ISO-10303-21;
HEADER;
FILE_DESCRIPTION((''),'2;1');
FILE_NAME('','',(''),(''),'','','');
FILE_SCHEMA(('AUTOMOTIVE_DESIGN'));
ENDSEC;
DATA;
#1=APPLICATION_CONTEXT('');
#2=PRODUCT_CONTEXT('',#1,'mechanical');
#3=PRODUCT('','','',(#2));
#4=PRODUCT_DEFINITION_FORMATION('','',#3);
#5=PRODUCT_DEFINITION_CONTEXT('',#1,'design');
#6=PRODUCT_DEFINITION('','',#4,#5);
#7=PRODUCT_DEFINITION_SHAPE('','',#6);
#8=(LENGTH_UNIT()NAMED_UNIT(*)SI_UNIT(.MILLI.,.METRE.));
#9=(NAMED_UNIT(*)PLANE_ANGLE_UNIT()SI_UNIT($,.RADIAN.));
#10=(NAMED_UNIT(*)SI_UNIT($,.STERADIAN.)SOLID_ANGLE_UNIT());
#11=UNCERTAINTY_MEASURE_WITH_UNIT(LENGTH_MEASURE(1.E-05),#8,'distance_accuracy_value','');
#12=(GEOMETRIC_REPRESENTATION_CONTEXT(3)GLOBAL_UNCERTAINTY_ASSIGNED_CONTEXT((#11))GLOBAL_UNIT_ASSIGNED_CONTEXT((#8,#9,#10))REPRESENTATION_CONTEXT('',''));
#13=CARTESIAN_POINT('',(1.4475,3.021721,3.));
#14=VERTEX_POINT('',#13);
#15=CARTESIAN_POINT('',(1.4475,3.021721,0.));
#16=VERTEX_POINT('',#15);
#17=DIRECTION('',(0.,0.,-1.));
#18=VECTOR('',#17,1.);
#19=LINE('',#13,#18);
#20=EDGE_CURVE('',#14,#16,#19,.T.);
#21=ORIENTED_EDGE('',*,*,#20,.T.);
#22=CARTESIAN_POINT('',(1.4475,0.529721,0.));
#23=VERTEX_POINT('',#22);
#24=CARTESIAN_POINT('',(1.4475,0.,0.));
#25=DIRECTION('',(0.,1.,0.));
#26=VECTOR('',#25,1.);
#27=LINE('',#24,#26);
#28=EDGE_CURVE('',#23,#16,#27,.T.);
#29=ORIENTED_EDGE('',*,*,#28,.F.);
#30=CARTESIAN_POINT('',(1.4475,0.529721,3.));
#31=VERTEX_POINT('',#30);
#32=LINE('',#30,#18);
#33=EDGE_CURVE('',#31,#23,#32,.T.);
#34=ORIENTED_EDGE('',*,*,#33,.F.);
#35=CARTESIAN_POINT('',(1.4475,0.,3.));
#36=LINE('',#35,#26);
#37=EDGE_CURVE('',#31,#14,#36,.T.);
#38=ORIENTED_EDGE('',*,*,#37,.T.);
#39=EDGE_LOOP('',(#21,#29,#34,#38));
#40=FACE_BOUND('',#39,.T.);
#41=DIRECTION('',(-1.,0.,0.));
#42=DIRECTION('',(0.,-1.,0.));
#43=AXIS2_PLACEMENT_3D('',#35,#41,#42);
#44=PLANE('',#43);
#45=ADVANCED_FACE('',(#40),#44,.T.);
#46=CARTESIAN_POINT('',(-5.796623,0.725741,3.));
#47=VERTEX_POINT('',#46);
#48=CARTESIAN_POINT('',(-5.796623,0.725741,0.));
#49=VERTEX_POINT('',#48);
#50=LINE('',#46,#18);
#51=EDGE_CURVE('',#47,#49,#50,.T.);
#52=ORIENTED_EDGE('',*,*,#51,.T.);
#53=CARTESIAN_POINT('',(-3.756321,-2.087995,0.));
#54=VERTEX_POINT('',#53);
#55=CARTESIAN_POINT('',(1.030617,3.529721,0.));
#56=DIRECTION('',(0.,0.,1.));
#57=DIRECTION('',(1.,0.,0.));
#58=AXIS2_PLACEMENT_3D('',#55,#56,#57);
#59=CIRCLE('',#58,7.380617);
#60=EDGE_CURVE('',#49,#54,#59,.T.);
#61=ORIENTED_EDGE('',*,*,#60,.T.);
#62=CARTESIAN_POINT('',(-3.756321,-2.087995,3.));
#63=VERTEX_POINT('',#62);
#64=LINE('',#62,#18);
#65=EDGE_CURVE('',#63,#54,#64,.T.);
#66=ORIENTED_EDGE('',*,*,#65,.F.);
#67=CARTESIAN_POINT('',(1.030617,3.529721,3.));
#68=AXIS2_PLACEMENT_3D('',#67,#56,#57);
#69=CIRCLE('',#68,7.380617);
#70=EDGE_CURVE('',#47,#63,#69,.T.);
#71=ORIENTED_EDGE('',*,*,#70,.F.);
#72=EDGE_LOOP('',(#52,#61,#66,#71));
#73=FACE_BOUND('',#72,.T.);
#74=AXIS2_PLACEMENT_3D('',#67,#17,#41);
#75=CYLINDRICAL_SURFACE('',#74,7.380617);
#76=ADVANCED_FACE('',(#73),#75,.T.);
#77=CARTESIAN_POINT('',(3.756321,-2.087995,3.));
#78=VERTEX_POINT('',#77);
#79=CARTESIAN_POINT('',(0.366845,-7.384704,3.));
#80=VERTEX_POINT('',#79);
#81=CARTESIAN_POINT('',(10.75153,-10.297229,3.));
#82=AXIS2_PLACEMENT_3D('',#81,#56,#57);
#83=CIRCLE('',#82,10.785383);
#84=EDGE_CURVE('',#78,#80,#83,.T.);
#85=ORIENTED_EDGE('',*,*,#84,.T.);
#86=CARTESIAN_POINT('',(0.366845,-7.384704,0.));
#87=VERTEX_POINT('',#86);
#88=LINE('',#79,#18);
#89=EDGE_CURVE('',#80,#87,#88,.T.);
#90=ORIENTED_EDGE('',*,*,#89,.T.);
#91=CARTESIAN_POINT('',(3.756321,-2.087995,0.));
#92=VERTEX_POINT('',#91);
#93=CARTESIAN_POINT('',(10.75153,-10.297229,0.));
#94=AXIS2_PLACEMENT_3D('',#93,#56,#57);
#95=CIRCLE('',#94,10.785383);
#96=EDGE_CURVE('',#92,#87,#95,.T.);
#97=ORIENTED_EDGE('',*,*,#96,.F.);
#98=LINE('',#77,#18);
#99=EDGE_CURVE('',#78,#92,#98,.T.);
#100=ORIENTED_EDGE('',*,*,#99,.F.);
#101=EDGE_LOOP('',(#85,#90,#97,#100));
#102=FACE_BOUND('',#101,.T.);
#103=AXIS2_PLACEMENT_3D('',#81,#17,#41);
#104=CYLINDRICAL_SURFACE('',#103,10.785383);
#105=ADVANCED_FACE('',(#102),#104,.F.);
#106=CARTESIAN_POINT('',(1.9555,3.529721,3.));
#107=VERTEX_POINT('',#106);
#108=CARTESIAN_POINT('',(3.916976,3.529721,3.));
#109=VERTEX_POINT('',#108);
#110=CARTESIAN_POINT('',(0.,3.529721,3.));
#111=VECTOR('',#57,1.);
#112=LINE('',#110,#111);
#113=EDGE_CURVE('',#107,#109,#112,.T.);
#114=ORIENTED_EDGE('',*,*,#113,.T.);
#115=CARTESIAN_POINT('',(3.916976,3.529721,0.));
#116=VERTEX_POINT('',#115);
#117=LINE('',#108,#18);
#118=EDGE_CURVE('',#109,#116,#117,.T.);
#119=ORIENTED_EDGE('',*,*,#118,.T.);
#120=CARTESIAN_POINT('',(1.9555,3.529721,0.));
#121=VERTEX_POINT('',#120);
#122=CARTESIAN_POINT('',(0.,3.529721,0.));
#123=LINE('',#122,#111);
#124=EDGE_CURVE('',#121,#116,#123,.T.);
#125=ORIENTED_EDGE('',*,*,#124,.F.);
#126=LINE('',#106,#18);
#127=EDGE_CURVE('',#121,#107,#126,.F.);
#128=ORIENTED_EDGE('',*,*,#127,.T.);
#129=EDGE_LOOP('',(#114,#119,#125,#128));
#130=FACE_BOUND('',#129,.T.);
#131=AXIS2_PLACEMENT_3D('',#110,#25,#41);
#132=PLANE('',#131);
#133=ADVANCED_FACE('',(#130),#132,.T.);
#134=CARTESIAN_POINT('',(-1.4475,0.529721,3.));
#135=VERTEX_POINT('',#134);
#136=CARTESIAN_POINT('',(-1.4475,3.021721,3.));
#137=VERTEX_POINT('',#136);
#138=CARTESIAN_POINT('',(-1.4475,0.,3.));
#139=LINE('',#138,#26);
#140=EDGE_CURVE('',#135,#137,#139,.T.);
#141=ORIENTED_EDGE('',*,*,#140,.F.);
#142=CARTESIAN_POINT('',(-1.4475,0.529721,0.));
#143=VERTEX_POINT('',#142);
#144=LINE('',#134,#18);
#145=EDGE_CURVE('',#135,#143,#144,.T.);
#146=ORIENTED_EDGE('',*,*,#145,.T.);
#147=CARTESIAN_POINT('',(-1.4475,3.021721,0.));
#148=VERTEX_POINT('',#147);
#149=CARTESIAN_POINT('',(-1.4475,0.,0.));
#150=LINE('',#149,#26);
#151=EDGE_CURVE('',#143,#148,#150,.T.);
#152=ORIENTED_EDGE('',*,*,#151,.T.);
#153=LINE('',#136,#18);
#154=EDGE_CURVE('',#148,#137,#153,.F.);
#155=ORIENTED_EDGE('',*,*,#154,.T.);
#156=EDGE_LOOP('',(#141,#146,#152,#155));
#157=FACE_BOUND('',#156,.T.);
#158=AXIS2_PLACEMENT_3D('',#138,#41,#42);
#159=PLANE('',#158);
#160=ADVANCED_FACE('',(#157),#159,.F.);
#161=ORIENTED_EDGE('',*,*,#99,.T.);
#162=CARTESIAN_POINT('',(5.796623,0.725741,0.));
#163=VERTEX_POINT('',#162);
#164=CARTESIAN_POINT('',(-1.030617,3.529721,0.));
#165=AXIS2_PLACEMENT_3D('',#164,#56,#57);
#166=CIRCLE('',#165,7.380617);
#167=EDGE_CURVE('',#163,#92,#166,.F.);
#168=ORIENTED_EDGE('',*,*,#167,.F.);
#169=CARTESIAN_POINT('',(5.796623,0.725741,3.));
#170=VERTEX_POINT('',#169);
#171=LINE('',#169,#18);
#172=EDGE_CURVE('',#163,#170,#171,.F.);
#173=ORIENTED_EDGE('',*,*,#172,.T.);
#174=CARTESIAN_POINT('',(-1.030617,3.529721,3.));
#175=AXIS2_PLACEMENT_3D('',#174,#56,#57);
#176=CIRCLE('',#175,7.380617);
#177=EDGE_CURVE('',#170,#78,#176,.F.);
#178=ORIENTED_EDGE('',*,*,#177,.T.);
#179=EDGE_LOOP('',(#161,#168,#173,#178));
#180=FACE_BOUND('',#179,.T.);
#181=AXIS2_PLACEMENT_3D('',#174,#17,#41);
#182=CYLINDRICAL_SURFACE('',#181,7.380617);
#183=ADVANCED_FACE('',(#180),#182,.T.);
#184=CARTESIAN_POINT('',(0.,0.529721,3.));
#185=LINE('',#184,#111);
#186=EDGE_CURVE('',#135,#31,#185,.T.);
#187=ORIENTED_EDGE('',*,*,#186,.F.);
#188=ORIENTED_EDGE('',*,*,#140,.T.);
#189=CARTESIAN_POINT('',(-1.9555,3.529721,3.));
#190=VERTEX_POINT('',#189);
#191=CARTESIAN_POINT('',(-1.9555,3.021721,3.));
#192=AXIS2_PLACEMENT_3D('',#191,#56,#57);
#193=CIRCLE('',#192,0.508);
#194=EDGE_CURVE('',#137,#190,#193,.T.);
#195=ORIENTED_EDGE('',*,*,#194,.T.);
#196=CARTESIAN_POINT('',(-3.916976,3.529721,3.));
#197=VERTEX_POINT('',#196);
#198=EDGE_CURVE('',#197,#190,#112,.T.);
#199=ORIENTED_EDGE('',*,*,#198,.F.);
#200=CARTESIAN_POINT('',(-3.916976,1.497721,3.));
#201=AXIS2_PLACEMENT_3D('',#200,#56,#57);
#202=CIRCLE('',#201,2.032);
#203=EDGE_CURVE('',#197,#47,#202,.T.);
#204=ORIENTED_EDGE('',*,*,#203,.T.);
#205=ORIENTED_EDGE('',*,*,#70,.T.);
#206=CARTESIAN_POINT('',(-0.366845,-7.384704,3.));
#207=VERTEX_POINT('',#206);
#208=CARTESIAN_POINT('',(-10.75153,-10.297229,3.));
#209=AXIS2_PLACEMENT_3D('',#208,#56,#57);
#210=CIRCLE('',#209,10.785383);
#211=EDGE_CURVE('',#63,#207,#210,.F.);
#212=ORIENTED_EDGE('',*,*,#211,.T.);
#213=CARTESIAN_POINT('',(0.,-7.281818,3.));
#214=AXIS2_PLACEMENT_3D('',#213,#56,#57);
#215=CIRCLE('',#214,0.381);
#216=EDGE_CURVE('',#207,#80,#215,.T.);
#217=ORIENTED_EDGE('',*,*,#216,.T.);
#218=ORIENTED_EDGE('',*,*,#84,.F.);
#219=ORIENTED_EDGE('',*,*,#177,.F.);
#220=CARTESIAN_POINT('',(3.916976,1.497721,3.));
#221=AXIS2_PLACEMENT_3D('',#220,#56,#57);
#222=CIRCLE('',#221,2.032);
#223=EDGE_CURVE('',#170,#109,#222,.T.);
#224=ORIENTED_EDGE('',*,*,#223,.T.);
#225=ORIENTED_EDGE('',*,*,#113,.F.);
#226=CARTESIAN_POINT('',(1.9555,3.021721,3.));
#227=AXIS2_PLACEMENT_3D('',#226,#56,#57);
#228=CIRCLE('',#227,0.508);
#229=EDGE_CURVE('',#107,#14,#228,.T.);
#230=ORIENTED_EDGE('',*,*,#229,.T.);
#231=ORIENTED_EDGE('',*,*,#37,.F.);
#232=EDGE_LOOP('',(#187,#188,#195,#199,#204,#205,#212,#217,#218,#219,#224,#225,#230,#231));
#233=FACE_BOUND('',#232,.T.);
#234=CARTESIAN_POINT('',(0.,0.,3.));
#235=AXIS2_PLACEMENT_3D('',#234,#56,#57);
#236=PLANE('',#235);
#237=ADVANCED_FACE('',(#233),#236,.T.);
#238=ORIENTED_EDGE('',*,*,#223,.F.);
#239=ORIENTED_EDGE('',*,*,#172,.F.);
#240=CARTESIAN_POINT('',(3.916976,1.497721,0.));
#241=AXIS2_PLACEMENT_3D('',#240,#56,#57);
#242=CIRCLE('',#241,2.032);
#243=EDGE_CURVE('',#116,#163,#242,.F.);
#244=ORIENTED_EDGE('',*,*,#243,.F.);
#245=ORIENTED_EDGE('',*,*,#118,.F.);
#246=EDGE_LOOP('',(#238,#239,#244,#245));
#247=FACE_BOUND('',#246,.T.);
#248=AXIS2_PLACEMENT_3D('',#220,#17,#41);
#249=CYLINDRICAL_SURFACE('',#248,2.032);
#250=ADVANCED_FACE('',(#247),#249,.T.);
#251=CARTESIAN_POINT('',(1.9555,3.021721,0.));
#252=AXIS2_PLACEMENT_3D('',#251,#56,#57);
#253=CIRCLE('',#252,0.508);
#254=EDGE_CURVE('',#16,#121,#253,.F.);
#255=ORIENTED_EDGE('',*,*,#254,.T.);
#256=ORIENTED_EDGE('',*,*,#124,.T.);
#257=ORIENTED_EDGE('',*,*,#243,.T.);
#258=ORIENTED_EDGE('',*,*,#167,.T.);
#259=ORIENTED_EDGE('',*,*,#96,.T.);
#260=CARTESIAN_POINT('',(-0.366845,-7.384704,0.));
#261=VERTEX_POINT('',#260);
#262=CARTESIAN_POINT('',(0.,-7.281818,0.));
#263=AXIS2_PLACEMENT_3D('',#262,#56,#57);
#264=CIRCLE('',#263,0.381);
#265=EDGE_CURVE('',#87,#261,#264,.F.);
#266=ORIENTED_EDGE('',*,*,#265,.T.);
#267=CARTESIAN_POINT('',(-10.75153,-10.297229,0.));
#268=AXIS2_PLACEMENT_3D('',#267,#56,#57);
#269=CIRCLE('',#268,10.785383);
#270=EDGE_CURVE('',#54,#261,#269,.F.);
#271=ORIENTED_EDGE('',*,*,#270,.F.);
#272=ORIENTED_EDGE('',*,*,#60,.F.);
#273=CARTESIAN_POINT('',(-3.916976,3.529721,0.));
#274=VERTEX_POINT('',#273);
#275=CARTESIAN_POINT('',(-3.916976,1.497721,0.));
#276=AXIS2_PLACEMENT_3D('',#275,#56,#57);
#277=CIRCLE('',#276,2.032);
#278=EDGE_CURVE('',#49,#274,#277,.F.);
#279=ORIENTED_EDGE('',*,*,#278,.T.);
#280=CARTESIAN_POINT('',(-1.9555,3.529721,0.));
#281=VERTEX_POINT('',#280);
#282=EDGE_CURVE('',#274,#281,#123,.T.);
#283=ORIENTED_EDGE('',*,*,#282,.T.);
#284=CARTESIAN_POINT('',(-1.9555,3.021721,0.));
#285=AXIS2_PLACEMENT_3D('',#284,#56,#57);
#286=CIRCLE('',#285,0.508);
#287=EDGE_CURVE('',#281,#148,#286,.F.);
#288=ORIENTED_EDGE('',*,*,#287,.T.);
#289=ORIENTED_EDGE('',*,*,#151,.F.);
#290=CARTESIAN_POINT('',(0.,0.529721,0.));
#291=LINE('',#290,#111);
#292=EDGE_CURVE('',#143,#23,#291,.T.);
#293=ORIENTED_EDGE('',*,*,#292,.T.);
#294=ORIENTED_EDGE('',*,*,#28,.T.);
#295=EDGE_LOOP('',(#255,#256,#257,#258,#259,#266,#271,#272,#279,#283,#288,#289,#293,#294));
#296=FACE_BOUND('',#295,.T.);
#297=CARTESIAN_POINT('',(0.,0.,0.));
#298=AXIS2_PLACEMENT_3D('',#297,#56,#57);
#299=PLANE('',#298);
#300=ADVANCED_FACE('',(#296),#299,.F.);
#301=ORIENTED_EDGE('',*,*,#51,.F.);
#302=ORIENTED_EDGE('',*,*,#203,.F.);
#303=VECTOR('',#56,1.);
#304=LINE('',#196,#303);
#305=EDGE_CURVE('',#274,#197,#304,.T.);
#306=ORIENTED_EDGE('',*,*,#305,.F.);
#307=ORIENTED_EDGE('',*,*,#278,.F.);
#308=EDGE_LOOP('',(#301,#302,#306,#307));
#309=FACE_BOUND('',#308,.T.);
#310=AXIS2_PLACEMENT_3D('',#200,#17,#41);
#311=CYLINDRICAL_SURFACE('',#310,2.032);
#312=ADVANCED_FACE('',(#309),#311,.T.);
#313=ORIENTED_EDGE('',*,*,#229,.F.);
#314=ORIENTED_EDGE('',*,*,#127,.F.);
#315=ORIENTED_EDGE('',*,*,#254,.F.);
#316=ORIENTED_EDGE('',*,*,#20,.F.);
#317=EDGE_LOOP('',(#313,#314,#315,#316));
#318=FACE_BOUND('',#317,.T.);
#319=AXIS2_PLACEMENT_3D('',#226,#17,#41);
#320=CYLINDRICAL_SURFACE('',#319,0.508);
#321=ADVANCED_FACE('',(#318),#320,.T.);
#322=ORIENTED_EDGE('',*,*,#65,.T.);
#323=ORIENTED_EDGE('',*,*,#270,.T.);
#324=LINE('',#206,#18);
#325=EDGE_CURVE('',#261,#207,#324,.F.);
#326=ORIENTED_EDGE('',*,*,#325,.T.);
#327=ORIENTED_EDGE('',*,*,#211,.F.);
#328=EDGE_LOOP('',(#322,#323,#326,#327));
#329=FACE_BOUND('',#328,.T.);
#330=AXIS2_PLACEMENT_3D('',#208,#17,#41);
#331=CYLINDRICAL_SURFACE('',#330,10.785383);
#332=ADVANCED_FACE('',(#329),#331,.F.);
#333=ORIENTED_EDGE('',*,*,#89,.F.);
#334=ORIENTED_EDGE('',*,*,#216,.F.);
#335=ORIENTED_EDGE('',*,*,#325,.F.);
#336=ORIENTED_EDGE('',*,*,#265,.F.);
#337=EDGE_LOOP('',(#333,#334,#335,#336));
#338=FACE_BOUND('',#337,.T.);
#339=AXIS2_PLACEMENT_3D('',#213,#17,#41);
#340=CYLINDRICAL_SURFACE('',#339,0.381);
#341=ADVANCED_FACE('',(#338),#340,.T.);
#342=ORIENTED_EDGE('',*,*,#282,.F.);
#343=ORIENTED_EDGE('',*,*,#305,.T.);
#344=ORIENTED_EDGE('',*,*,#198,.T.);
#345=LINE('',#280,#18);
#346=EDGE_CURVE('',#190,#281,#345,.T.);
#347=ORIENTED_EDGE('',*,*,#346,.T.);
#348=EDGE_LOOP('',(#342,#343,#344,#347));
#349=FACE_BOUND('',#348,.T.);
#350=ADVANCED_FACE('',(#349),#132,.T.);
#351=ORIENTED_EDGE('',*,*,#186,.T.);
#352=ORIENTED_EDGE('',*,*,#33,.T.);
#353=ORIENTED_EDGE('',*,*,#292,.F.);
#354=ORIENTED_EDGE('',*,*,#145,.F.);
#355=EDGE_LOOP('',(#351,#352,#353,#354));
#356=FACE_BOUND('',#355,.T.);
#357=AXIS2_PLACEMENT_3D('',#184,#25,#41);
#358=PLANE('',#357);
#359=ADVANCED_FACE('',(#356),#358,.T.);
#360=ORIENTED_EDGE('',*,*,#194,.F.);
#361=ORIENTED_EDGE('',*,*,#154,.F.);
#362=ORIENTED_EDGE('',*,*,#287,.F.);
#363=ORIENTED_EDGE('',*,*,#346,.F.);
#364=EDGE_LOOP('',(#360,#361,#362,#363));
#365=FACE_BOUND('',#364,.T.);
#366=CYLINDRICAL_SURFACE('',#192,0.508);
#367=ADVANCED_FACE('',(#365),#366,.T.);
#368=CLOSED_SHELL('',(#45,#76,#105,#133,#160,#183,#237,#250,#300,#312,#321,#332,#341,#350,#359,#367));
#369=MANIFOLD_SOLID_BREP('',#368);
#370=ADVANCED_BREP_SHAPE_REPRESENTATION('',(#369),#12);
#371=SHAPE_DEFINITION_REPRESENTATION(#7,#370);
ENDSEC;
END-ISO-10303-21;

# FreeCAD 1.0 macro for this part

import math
import FreeCAD as App
import Part
import Sketcher

V = App.Vector
Q = App.Units.Quantity


def edges_at(feature, points):
    """Names of the edges that pass closest to the given points."""
    edges = feature.Shape.Edges
    near = lambda p: min(range(len(edges)), key=lambda i: edges[i].distToShape(Part.Vertex(*p))[0])
    return sorted({f"Edge{near(p) + 1}" for p in points})

doc = App.newDocument("Part")
body = doc.addObject("PartDesign::Body", "Body")

sketch1 = body.newObject("Sketcher::SketchObject", "Sketch")
sketch1.AttachmentSupport = (doc.getObject("XY_Plane"), [""])
sketch1.MapMode = "FlatFace"
sketch1.addGeometry(Part.ArcOfCircle(Part.Circle(V(-1, 3.5, 0), V(0, 0, 1), 7.4), math.radians(-50), math.radians(0)), False)
sketch1.addGeometry(Part.LineSegment(V(6.3, 3.5, 0), V(1.4, 3.5, 0)), False)
sketch1.addGeometry(Part.LineSegment(V(1.4, 3.5, 0), V(1.4, 0.5, 0)), False)
sketch1.addGeometry(Part.LineSegment(V(1.4, 0.5, 0), V(-1.4, 0.5, 0)), False)
sketch1.addGeometry(Part.LineSegment(V(-1.4, 0.5, 0), V(-1.4, 3.5, 0)), False)
sketch1.addGeometry(Part.LineSegment(V(-1.4, 3.5, 0), V(-6.3, 3.5, 0)), False)
sketch1.addGeometry(Part.ArcOfCircle(Part.Circle(V(1, 3.5, 0), V(0, 0, 1), 7.4), math.radians(-180), math.radians(-130)), False)
sketch1.addGeometry(Part.ArcOfCircle(Part.Circle(V(-10.8, -10.3, 0), V(0, 0, 1), 10.8), math.radians(5), math.radians(50)), False)
sketch1.addGeometry(Part.ArcOfCircle(Part.Circle(V(10.8, -10.3, 0), V(0, 0, 1), 10.8), math.radians(130), math.radians(175)), False)
sketch1.addConstraint(Sketcher.Constraint("Coincident", 0, 2, 1, 1))
sketch1.addConstraint(Sketcher.Constraint("Coincident", 1, 2, 2, 1))
sketch1.addConstraint(Sketcher.Constraint("Coincident", 2, 2, 3, 1))
sketch1.addConstraint(Sketcher.Constraint("Coincident", 3, 2, 4, 1))
sketch1.addConstraint(Sketcher.Constraint("Coincident", 4, 2, 5, 1))
sketch1.addConstraint(Sketcher.Constraint("Coincident", 5, 2, 6, 1))
sketch1.addConstraint(Sketcher.Constraint("Tangent", 6, 2, 7, 2))
sketch1.addConstraint(Sketcher.Constraint("Coincident", 7, 1, 8, 2))
sketch1.addConstraint(Sketcher.Constraint("Tangent", 8, 1, 0, 1))
sketch1.addConstraint(Sketcher.Constraint("Horizontal", 1))
sketch1.addConstraint(Sketcher.Constraint("Vertical", 2))
sketch1.addConstraint(Sketcher.Constraint("Horizontal", 3))
sketch1.addConstraint(Sketcher.Constraint("Vertical", 4))
sketch1.addConstraint(Sketcher.Constraint("Horizontal", 5))
sketch1.addConstraint(Sketcher.Constraint("Equal", 0, 6))
sketch1.addConstraint(Sketcher.Constraint("Equal", 7, 8))
sketch1.addConstraint(Sketcher.Constraint("Symmetric", 0, 3, 6, 3, -2))
sketch1.addConstraint(Sketcher.Constraint("Symmetric", 1, 2, 4, 2, -2))
sketch1.addConstraint(Sketcher.Constraint("PointOnObject", 7, 1, -2))
sketch1.addConstraint(Sketcher.Constraint("Horizontal", 6, 3, 0, 2))
sketch1.addConstraint(Sketcher.Constraint("DistanceX", -1, 1, 0, 2, Q("0.25 in")))
sketch1.addConstraint(Sketcher.Constraint("DistanceX", 1, 2, 1, 1, 4.9025))
sketch1.addConstraint(Sketcher.Constraint("DistanceY", 2, 2, 2, 1, 3.0))
sketch1.addConstraint(Sketcher.Constraint("Radius", 0, 7.380617))
sketch1.addConstraint(Sketcher.Constraint("Radius", 7, 10.785383))
sketch1.addConstraint(Sketcher.Constraint("DistanceY", -1, 1, 0, 3, 3.529721))
sketch1.addConstraint(Sketcher.Constraint("DistanceX", 7, 3, -1, 1, 10.75153))
pad1 = body.newObject("PartDesign::Pad", "Pad")
pad1.Profile = sketch1
pad1.Length = 3
doc.recompute()

fillet = body.newObject("PartDesign::Fillet", "Fillet")
fillet.Base = (pad1, edges_at(pad1, [(0, -9.443, 1.5)]))
fillet.Radius = Q("0.015 in")
doc.recompute()

fillet2 = body.newObject("PartDesign::Fillet", "Fillet001")
fillet2.Base = (fillet, edges_at(fillet, [(-6.35, 3.53, 1.5), (6.35, 3.53, 1.5)]))
fillet2.Radius = Q("0.08 in")
doc.recompute()

fillet3 = body.newObject("PartDesign::Fillet", "Fillet002")
fillet3.Base = (fillet2, edges_at(fillet2, [(-1.448, 3.53, 1.5), (1.448, 3.53, 1.5)]))
fillet3.Radius = Q("0.02 in")

doc.recompute()
